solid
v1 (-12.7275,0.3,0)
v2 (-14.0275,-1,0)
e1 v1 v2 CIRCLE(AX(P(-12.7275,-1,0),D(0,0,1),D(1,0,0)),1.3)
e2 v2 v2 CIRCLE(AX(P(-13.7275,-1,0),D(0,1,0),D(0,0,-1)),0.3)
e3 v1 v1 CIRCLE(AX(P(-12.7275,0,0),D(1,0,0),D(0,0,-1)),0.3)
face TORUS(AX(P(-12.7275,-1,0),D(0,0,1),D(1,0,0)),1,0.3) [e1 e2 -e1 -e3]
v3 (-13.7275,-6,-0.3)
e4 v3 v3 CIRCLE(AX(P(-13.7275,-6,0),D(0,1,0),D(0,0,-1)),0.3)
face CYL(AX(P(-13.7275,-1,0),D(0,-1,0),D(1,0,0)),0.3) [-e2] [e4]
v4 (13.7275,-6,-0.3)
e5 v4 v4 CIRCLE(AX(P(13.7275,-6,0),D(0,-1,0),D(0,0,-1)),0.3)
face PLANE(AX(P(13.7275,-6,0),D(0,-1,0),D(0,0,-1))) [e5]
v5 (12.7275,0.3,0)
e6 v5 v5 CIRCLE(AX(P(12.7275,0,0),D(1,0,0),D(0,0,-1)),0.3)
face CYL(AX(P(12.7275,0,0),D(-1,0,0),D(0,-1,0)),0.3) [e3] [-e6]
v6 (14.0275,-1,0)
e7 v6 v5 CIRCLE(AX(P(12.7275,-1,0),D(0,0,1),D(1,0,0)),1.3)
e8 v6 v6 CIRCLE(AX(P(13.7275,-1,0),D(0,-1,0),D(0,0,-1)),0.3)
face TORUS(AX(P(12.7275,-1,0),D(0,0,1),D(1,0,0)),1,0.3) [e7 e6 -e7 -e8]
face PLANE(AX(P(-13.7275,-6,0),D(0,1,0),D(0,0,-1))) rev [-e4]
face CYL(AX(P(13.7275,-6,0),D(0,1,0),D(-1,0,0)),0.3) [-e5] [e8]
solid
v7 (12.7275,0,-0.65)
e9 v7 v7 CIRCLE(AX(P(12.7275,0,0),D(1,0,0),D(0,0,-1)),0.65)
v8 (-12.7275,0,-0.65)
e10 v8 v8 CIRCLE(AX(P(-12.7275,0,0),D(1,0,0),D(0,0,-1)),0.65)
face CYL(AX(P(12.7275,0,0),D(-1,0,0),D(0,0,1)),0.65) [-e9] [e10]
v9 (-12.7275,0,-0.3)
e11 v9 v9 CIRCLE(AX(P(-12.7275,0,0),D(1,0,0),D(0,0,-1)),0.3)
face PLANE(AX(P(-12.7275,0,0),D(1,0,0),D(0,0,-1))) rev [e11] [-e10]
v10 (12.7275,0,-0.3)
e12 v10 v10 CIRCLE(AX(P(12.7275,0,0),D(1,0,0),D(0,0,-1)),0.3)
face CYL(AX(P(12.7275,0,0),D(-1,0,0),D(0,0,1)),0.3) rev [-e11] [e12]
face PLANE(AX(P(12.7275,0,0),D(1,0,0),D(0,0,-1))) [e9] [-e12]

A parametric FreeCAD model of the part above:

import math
import FreeCAD as App
import Part
import Sketcher

V = App.Vector

doc = App.newDocument("Part")
body = doc.addObject("PartDesign::Body", "Body")

# Sketch on YZ plane
sketch1 = body.newObject("Sketcher::SketchObject", "Sketch")
sketch1.AttachmentSupport = (doc.getObject("YZ_Plane"), [""])
sketch1.MapMode = "FlatFace"
sketch1.addGeometry(Part.Circle(V(0, 0, 0), V(0, 0, 1), 0.3), False)
sketch1.addConstraint([
    Sketcher.Constraint("Coincident", 0, 3, -1, 1),
    Sketcher.Constraint("Diameter", 0, 0.6),
])

# Sketch on XY plane
sketch2 = body.newObject("Sketcher::SketchObject", "Sketch001")
sketch2.AttachmentSupport = (doc.getObject("XY_Plane"), [""])
sketch2.MapMode = "FlatFace"
sketch2.addGeometry([
    Part.LineSegment(V(-13.7275, -6, 0), V(-13.7275, -1, 0)),  # 0
    Part.ArcOfCircle(Part.Circle(V(-12.7275, -1, 0), V(0, 0, 1), 1), math.radians(90), math.radians(180)),  # 1
    Part.LineSegment(V(-12.7275, 0, 0), V(12.7275, 0, 0)),  # 2
    Part.ArcOfCircle(Part.Circle(V(12.7275, -1, 0), V(0, 0, 1), 1), math.radians(0), math.radians(90)),  # 3
    Part.LineSegment(V(13.7275, -1, 0), V(13.7275, -6, 0)),  # 4
], False)
sketch2.addConstraint([
    Sketcher.Constraint("Tangent", 0, 2, 1, 2),
    Sketcher.Constraint("Tangent", 1, 1, 2, 1),
    Sketcher.Constraint("Tangent", 2, 2, 3, 2),
    Sketcher.Constraint("Tangent", 3, 1, 4, 1),
    Sketcher.Constraint("Vertical", 0),
    Sketcher.Constraint("Horizontal", 2),
    Sketcher.Constraint("Vertical", 4),
    Sketcher.Constraint("Equal", 1, 3),
    Sketcher.Constraint("Symmetric", 1, 1, 2, 2, -1, 1),
    Sketcher.Constraint("Horizontal", 0, 1, 4, 2),
    Sketcher.Constraint("Radius", 1, 1.0),
    Sketcher.Constraint("DistanceY", 0, 1, 0, 2, 5.0),
    Sketcher.Constraint("DistanceX", 2, 1, 2, 2, 25.455),
])
doc.recompute()

additivepipe = body.newObject("PartDesign::AdditivePipe", "AdditivePipe")
additivepipe.Profile = sketch1
additivepipe.Spine = (sketch2, ["Edge1", "Edge2", "Edge3", "Edge4", "Edge5"])
body2 = doc.addObject("PartDesign::Body", "Body001")

# Sketch on YZ plane
sketch3 = body2.newObject("Sketcher::SketchObject", "Sketch002")
sketch3.AttachmentSupport = (doc.getObject("YZ_Plane001"), [""])
sketch3.MapMode = "FlatFace"
sketch3.addGeometry([
    Part.Circle(V(0, 0, 0), V(0, 0, 1), 0.65),
    Part.Circle(V(0, 0, 0), V(0, 0, 1), 0.3),
], False)
sketch3.addConstraint([
    Sketcher.Constraint("Coincident", 0, 3, -1, 1),
    Sketcher.Constraint("Coincident", 1, 3, -1, 1),
    Sketcher.Constraint("Diameter", 0, 1.3),
    Sketcher.Constraint("Diameter", 1, 0.6),
])
pad1 = body2.newObject("PartDesign::Pad", "Pad")
pad1.Profile = sketch3
pad1.Type = "TwoLengths"
pad1.Length = 12.7275
pad1.Length2 = 12.7275

doc.recompute()
